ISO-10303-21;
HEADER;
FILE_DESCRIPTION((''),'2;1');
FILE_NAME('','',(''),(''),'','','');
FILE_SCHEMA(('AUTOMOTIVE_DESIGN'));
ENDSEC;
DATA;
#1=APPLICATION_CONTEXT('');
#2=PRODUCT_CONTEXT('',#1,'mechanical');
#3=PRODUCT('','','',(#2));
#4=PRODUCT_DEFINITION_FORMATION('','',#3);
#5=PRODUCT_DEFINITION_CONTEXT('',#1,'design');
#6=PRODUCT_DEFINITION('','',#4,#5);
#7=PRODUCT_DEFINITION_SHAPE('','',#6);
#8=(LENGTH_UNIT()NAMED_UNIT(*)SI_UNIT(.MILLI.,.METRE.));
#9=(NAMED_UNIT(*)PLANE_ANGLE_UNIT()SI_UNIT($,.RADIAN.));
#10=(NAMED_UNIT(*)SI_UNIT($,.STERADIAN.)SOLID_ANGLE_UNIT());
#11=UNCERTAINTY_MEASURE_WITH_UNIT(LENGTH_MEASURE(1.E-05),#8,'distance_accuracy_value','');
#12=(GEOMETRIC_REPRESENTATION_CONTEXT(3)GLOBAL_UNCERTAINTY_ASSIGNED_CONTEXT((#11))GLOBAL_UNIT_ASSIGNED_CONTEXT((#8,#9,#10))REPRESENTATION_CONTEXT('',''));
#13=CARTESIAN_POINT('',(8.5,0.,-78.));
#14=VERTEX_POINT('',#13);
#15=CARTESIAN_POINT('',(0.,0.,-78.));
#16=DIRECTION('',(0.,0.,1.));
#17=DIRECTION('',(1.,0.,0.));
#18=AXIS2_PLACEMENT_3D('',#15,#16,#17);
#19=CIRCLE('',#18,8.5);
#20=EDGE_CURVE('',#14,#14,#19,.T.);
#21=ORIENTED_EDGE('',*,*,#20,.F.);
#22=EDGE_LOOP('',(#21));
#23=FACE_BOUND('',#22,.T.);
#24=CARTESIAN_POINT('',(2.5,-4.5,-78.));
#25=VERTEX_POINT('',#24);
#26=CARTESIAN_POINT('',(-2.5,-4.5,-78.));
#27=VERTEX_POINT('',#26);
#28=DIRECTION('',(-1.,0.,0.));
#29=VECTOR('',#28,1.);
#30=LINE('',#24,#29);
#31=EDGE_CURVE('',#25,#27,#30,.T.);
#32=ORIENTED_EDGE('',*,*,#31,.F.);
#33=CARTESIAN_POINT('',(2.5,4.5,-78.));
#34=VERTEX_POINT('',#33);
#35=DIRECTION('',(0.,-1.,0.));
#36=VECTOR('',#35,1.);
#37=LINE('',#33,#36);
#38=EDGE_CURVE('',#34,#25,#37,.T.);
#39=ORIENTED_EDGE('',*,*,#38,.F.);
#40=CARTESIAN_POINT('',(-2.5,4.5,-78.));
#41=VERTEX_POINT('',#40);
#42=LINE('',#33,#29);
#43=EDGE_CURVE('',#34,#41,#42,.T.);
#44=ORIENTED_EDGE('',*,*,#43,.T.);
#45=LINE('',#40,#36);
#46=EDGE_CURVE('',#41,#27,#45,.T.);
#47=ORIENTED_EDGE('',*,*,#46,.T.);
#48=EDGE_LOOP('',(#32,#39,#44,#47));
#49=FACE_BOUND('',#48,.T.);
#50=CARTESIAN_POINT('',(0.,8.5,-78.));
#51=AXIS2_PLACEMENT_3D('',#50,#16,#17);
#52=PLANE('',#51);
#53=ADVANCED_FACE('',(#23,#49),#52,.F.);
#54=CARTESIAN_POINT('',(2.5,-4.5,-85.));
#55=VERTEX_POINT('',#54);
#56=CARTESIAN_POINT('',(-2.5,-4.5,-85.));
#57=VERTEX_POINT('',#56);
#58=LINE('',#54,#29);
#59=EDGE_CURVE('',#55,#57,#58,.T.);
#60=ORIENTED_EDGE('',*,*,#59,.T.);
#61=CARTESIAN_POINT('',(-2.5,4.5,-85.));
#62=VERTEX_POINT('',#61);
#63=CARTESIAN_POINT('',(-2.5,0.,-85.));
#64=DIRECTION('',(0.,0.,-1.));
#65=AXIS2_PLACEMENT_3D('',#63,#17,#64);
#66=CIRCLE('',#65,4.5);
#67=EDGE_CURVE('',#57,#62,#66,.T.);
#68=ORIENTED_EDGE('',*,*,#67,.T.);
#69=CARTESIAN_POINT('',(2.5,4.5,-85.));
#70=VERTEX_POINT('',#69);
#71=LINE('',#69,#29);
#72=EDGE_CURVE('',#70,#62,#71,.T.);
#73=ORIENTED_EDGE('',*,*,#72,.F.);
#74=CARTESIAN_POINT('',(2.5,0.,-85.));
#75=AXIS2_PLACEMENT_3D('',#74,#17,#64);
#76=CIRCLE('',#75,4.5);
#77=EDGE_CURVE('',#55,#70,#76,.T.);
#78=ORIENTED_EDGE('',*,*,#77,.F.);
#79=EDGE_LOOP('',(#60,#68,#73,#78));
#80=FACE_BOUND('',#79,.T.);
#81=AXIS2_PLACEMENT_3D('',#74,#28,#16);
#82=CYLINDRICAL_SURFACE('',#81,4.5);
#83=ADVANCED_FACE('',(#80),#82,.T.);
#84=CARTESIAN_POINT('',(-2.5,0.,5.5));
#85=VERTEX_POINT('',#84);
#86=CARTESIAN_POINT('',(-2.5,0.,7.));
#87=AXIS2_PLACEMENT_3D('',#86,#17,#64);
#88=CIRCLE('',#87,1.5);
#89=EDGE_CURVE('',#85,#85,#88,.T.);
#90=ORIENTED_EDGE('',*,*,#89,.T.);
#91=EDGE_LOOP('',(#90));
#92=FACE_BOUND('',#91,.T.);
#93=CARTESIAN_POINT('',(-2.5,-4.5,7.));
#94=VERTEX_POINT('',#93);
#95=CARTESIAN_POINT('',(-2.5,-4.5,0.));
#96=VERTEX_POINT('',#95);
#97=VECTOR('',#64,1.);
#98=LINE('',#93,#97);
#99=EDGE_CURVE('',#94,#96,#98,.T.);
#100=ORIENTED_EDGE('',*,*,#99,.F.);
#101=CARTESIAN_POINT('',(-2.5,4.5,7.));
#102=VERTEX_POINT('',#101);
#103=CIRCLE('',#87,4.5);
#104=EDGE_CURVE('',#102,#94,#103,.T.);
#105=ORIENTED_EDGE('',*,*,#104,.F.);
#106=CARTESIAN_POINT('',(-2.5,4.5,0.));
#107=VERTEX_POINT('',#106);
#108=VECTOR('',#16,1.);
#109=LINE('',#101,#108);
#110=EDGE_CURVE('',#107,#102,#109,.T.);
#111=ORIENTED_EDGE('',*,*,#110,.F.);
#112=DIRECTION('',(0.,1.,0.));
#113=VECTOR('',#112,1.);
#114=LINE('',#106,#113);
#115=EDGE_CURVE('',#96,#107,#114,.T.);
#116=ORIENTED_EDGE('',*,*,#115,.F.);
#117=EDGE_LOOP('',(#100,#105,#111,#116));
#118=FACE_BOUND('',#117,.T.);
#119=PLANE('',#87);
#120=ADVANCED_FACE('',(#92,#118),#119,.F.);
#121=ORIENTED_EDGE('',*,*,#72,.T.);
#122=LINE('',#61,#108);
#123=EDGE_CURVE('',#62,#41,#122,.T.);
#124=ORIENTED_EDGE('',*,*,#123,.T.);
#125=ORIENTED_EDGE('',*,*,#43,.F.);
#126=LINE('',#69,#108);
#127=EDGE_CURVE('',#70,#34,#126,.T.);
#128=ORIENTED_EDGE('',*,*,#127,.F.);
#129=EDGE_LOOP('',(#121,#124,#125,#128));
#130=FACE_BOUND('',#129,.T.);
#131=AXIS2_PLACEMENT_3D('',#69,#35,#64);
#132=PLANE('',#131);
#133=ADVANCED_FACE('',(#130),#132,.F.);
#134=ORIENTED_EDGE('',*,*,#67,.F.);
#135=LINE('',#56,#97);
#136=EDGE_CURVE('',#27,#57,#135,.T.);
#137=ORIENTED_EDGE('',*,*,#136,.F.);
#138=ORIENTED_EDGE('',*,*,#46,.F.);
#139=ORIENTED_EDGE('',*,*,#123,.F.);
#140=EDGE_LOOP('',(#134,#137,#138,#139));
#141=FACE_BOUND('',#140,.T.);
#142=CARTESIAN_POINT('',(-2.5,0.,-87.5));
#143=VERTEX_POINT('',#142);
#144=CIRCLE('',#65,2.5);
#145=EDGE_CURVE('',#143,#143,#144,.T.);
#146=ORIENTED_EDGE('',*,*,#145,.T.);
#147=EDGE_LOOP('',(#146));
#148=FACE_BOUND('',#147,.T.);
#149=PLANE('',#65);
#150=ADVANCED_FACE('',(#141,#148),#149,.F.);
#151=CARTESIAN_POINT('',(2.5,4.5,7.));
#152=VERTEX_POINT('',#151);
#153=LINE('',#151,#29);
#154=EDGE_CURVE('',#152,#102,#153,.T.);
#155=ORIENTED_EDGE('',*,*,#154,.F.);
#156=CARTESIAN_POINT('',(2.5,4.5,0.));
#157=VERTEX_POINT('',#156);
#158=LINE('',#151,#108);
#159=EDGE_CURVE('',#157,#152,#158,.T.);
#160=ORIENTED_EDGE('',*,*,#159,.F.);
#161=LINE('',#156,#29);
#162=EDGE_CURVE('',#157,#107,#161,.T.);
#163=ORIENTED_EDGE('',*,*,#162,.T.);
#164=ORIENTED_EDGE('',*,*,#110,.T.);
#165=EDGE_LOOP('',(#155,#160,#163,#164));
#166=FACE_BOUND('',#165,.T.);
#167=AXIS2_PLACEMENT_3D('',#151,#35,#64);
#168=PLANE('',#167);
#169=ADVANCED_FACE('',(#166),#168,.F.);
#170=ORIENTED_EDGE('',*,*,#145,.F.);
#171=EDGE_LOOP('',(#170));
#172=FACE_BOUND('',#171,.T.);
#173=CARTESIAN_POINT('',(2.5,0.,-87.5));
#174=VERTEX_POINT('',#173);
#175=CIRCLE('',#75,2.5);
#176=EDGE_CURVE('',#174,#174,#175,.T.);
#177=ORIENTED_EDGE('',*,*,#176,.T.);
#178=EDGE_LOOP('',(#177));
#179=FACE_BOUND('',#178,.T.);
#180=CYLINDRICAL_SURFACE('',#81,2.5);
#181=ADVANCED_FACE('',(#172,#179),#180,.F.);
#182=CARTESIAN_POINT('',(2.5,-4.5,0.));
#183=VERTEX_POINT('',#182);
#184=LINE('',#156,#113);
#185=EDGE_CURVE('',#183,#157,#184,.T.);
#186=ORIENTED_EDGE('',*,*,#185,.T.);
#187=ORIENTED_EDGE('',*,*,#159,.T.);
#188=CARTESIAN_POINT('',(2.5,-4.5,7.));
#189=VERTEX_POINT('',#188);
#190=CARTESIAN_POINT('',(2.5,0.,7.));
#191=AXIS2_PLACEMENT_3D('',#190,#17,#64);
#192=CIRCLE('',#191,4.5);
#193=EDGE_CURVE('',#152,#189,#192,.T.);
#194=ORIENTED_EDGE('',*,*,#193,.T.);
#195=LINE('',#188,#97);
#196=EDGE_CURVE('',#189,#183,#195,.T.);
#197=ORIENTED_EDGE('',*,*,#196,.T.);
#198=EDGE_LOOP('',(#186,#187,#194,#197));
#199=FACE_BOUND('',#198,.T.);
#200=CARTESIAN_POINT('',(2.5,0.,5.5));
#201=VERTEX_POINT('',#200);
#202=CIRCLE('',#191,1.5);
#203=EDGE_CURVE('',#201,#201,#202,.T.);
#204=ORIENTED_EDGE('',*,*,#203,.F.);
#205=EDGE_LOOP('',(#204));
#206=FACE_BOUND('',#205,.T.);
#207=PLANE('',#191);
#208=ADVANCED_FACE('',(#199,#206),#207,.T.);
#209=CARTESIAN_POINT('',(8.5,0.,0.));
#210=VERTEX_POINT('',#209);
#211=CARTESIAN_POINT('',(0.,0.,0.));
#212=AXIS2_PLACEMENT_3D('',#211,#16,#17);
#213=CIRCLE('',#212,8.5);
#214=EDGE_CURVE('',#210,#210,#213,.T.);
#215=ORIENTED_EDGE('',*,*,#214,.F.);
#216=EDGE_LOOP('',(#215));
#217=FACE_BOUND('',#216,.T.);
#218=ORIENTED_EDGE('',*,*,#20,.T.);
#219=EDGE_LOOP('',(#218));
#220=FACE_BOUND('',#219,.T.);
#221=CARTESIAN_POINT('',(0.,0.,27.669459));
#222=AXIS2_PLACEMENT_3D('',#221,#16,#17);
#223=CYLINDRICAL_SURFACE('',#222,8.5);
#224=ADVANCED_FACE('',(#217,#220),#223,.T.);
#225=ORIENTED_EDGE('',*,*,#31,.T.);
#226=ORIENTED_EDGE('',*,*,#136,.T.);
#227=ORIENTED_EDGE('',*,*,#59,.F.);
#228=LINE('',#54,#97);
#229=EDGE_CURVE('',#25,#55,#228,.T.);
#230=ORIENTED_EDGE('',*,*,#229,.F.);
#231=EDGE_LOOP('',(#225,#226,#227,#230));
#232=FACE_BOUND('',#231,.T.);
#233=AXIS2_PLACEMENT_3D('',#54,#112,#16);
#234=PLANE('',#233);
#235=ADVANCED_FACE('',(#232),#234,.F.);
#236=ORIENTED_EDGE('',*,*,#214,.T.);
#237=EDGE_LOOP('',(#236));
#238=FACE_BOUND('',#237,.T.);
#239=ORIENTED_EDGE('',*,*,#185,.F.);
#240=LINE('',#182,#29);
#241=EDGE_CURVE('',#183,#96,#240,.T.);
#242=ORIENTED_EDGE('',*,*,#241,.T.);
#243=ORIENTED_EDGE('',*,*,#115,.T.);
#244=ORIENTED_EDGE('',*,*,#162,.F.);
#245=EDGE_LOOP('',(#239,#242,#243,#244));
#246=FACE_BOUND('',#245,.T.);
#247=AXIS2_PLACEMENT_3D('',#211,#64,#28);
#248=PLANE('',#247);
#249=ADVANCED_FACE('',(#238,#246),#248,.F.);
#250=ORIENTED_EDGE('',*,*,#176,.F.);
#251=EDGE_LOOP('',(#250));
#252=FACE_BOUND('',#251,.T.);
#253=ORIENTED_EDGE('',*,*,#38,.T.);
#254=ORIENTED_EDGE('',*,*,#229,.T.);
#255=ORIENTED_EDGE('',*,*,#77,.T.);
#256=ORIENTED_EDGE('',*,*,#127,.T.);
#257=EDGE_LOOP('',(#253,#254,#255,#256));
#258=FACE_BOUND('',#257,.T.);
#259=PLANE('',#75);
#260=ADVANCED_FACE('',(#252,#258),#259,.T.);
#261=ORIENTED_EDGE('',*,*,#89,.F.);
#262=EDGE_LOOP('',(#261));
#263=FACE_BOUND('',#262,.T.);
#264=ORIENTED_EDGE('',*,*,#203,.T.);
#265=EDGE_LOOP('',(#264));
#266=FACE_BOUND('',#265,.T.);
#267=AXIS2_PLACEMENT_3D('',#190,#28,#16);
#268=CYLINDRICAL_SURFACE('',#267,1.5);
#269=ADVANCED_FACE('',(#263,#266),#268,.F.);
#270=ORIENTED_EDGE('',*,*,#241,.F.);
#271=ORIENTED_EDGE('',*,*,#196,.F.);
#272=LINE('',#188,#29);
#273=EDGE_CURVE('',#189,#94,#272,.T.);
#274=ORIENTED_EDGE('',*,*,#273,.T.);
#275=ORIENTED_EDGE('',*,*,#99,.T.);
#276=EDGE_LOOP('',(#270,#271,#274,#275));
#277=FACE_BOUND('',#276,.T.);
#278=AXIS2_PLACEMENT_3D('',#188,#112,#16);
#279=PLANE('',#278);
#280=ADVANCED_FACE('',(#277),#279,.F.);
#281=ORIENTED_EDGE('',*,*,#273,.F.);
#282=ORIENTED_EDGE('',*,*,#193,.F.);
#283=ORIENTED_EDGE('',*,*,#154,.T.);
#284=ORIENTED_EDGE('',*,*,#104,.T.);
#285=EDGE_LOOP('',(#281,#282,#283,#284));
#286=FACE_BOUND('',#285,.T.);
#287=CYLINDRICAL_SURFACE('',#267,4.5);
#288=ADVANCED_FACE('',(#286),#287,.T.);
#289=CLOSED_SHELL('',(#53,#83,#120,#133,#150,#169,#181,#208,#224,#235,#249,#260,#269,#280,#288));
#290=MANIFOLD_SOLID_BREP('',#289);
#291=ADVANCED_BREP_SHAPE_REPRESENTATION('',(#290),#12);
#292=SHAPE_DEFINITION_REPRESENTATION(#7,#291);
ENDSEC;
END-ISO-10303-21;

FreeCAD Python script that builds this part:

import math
import FreeCAD as App
import Part
import Sketcher
Q = App.Units.Quantity


def add_polygon(sketch, points):
    """Adds a closed chain of lines whose ends are joined by coincident constraints."""
    first, n = sketch.GeometryCount, len(points)
    for a, b in zip(points, points[1:] + points[:1]):
        sketch.addGeometry(Part.LineSegment(App.Vector(*a, 0), App.Vector(*b, 0)), False)
    for i in range(n):
        sketch.addConstraint(Sketcher.Constraint("Coincident", first + i, 2, first + (i + 1) % n, 1))

doc = App.newDocument("Part")
body = doc.addObject("PartDesign::Body", "Body")

sketch1 = body.newObject("Sketcher::SketchObject", "Sketch")
sketch1.AttachmentSupport = (doc.getObject("YZ_Plane"), [""])
sketch1.MapMode = "FlatFace"
add_polygon(sketch1, [(8.5, 0), (0, 0), (0, -78), (8.5, -78)])
sketch1.addConstraint(Sketcher.Constraint("Horizontal", 0))
sketch1.addConstraint(Sketcher.Constraint("Vertical", 1))
sketch1.addConstraint(Sketcher.Constraint("Horizontal", 2))
sketch1.addConstraint(Sketcher.Constraint("Vertical", 3))
sketch1.addConstraint(Sketcher.Constraint("Coincident", 0, 2, -1, 1))
sketch1.addConstraint(Sketcher.Constraint("DistanceY", 1, 2, 1, 1, Q("78 mm")))
sketch1.addConstraint(Sketcher.Constraint("DistanceX", 0, 2, 0, 1, Q("8.5 mm")))
revolution = body.newObject("PartDesign::Revolution", "Revolution")
revolution.Profile = sketch1
revolution.ReferenceAxis = (sketch1, ["V_Axis"])
revolution.Angle = 360

sketch2 = body.newObject("Sketcher::SketchObject", "Sketch001")
sketch2.AttachmentSupport = (doc.getObject("YZ_Plane"), [""])
sketch2.MapMode = "FlatFace"
sketch2.addGeometry(Part.LineSegment(App.Vector(4.5, 0, 0), App.Vector(4.5, 7, 0)), False)
sketch2.addGeometry(Part.ArcOfCircle(Part.Circle(App.Vector(0, 7, 0), App.Vector(0, 0, 1), 4.5), math.radians(0), math.radians(180)), False)
sketch2.addGeometry(Part.LineSegment(App.Vector(-4.5, 7, 0), App.Vector(-4.5, 0, 0)), False)
sketch2.addGeometry(Part.LineSegment(App.Vector(-4.5, 0, 0), App.Vector(4.5, 0, 0)), False)
sketch2.addGeometry(Part.Circle(App.Vector(0, 7, 0), App.Vector(0, 0, 1), 1.5), False)
sketch2.addGeometry(Part.LineSegment(App.Vector(4.5, -85, 0), App.Vector(4.5, -78, 0)), False)
sketch2.addGeometry(Part.LineSegment(App.Vector(4.5, -78, 0), App.Vector(-4.5, -78, 0)), False)
sketch2.addGeometry(Part.LineSegment(App.Vector(-4.5, -78, 0), App.Vector(-4.5, -85, 0)), False)
sketch2.addGeometry(Part.ArcOfCircle(Part.Circle(App.Vector(0, -85, 0), App.Vector(0, 0, 1), 4.5), math.radians(180), math.radians(360)), False)
sketch2.addGeometry(Part.Circle(App.Vector(0, -85, 0), App.Vector(0, 0, 1), 2.5), False)
sketch2.addConstraint(Sketcher.Constraint("Tangent", 0, 2, 1, 1))
sketch2.addConstraint(Sketcher.Constraint("Tangent", 1, 2, 2, 1))
sketch2.addConstraint(Sketcher.Constraint("Coincident", 2, 2, 3, 1))
sketch2.addConstraint(Sketcher.Constraint("Coincident", 3, 2, 0, 1))
sketch2.addConstraint(Sketcher.Constraint("Coincident", 5, 2, 6, 1))
sketch2.addConstraint(Sketcher.Constraint("Coincident", 6, 2, 7, 1))
sketch2.addConstraint(Sketcher.Constraint("Tangent", 7, 2, 8, 1))
sketch2.addConstraint(Sketcher.Constraint("Tangent", 8, 2, 5, 1))
sketch2.addConstraint(Sketcher.Constraint("Vertical", 0))
sketch2.addConstraint(Sketcher.Constraint("Vertical", 2))
sketch2.addConstraint(Sketcher.Constraint("Horizontal", 3))
sketch2.addConstraint(Sketcher.Constraint("Vertical", 5))
sketch2.addConstraint(Sketcher.Constraint("Horizontal", 6))
sketch2.addConstraint(Sketcher.Constraint("Vertical", 7))
sketch2.addConstraint(Sketcher.Constraint("Coincident", 4, 3, 1, 3))
sketch2.addConstraint(Sketcher.Constraint("Coincident", 9, 3, 8, 3))
sketch2.addConstraint(Sketcher.Constraint("Equal", 1, 8))
sketch2.addConstraint(Sketcher.Constraint("Symmetric", 2, 2, 3, 2, -1, 1))
sketch2.addConstraint(Sketcher.Constraint("PointOnObject", 8, 3, -2))
sketch2.addConstraint(Sketcher.Constraint("Equal", 2, 5))
sketch2.addConstraint(Sketcher.Constraint("Diameter", 4, Q("3 mm")))
sketch2.addConstraint(Sketcher.Constraint("Diameter", 9, Q("5 mm")))
sketch2.addConstraint(Sketcher.Constraint("Radius", 1, Q("4.5 mm")))
sketch2.addConstraint(Sketcher.Constraint("DistanceY", 0, 1, 0, 2, Q("7 mm")))
sketch2.addConstraint(Sketcher.Constraint("DistanceY", 8, 3, -1, 1, Q("85 mm")))
pad1 = body.newObject("PartDesign::Pad", "Pad")
pad1.Profile = sketch2
pad1.Length = 5
pad1.Midplane = True

doc.recompute()
